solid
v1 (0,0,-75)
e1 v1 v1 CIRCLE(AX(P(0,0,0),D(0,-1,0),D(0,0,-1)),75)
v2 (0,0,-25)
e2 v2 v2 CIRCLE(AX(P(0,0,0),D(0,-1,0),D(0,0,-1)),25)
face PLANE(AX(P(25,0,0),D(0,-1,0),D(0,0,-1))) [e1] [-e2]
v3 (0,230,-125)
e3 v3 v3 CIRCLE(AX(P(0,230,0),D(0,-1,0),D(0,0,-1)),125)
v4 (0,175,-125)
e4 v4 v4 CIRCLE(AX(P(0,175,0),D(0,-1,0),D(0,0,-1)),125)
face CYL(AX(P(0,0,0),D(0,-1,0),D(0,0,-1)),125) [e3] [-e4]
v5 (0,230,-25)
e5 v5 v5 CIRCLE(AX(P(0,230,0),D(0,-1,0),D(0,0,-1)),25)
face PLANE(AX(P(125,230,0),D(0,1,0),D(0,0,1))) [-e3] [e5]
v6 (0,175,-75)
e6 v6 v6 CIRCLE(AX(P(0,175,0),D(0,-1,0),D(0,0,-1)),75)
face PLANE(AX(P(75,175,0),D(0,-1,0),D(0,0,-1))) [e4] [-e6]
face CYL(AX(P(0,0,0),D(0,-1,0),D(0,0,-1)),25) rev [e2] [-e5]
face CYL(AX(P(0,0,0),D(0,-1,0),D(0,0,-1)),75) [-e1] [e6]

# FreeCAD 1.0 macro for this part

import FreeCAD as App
import Part
import Sketcher

V = App.Vector

doc = App.newDocument("Part")
body = doc.addObject("PartDesign::Body", "Body")

# Sketch on XY plane
sketch1 = body.newObject("Sketcher::SketchObject", "Sketch")
sketch1.AttachmentSupport = (doc.getObject("XY_Plane"), [""])
sketch1.MapMode = "FlatFace"
sketch1.addGeometry([
    Part.LineSegment(V(25, 0, 0), V(75, 0, 0)),  # 0
    Part.LineSegment(V(75, 0, 0), V(75, 175, 0)),  # 1
    Part.LineSegment(V(75, 175, 0), V(125, 175, 0)),  # 2
    Part.LineSegment(V(125, 175, 0), V(125, 230, 0)),  # 3
    Part.LineSegment(V(125, 230, 0), V(25, 230, 0)),  # 4
    Part.LineSegment(V(25, 230, 0), V(25, 0, 0)),  # 5
], False)
sketch1.addConstraint([
    Sketcher.Constraint("Coincident", 0, 2, 1, 1),
    Sketcher.Constraint("Coincident", 1, 2, 2, 1),
    Sketcher.Constraint("Coincident", 2, 2, 3, 1),
    Sketcher.Constraint("Coincident", 3, 2, 4, 1),
    Sketcher.Constraint("Coincident", 4, 2, 5, 1),
    Sketcher.Constraint("Coincident", 5, 2, 0, 1),
    Sketcher.Constraint("Horizontal", 0),
    Sketcher.Constraint("Vertical", 1),
    Sketcher.Constraint("Horizontal", 2),
    Sketcher.Constraint("Vertical", 3),
    Sketcher.Constraint("Horizontal", 4),
    Sketcher.Constraint("Vertical", 5),
    Sketcher.Constraint("PointOnObject", 0, 2, -1),
    Sketcher.Constraint("Equal", 0, 2),
    Sketcher.Constraint("DistanceX", 0, 1, 0, 2, 50.0),
    Sketcher.Constraint("DistanceY", 1, 1, 1, 2, 175.0),
    Sketcher.Constraint("DistanceY", 3, 1, 3, 2, 55.0),
    Sketcher.Constraint("DistanceX", -1, 1, 0, 2, 75.0),
])
revolution = body.newObject("PartDesign::Revolution", "Revolution")
revolution.Profile = sketch1
revolution.ReferenceAxis = (sketch1, ["V_Axis"])
revolution.Angle = 360

doc.recompute()
